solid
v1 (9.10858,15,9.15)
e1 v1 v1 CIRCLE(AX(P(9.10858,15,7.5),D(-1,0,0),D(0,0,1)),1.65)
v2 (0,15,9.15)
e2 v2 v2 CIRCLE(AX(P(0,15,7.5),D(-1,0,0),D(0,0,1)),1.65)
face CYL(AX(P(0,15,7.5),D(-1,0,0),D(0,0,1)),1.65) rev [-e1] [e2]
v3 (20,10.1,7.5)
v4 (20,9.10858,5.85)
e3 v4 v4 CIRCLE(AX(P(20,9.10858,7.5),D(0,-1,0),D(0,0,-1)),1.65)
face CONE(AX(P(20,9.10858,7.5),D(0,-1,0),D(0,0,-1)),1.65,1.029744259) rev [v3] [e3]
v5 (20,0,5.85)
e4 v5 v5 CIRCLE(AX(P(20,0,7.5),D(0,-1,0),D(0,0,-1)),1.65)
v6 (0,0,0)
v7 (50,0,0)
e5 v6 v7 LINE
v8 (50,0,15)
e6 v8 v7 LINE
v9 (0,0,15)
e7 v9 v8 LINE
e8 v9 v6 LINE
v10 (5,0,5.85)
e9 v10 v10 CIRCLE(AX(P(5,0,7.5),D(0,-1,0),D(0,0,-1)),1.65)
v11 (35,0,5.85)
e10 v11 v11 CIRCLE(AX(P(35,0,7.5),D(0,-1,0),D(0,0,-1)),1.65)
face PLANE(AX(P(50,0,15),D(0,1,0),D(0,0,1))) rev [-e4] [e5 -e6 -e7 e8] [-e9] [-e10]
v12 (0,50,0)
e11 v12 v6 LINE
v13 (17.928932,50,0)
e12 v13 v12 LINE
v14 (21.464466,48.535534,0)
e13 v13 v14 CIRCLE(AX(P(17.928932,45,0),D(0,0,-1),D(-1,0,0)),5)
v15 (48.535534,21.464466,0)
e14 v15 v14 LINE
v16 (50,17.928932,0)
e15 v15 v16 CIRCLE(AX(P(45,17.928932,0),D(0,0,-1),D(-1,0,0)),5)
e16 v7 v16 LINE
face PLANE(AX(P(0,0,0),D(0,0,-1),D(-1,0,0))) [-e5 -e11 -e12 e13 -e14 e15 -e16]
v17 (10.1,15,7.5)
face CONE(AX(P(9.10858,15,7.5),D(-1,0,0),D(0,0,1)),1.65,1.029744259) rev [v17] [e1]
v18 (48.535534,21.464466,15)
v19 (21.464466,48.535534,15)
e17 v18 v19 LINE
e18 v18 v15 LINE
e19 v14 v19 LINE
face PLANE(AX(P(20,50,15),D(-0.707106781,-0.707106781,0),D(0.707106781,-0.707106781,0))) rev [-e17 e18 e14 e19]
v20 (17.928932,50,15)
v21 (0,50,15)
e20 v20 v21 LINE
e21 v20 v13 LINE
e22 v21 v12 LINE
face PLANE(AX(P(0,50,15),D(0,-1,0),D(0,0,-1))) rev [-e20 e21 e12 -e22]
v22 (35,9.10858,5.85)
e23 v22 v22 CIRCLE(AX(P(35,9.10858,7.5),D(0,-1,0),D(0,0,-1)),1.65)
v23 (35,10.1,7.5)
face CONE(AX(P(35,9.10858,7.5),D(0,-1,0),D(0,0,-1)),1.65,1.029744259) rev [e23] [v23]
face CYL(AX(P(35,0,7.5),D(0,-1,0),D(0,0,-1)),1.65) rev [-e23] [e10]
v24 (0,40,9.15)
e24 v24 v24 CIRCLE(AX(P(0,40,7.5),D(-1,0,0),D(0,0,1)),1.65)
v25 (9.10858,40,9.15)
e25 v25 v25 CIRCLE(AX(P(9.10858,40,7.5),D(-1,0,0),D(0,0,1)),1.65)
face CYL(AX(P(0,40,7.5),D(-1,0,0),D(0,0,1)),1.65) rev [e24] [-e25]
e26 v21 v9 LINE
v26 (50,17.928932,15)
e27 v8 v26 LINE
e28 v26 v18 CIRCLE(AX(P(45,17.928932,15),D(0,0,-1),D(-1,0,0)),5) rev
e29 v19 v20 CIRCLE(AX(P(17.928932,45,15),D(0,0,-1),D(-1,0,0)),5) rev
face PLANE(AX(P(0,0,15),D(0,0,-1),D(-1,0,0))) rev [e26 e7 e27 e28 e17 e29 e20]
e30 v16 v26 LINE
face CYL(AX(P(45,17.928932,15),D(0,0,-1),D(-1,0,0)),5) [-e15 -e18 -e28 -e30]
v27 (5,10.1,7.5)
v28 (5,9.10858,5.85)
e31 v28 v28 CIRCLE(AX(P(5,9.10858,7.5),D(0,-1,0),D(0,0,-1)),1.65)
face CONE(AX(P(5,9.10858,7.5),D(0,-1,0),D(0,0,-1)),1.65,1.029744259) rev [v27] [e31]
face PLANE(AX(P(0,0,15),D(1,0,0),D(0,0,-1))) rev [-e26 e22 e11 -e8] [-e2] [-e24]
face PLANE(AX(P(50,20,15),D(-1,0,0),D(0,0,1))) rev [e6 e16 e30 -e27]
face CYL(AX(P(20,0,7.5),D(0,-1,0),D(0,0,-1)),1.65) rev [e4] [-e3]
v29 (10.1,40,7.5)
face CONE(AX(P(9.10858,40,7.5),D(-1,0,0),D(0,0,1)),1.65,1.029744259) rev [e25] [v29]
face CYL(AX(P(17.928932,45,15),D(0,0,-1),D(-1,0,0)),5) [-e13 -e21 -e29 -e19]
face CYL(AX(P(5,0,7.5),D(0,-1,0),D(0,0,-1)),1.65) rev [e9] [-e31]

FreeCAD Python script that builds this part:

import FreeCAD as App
import Part
import Sketcher

V = App.Vector


def edges_at(feature, points):
    """Names of the edges that pass closest to the given points."""
    edges = feature.Shape.Edges
    near = lambda p: min(range(len(edges)), key=lambda i: edges[i].distToShape(Part.Vertex(*p))[0])
    return sorted({f"Edge{near(p) + 1}" for p in points})


def add_polygon(sketch, points):
    """Adds a closed chain of lines whose ends are joined by coincident constraints."""
    first, n = sketch.GeometryCount, len(points)
    for a, b in zip(points, points[1:] + points[:1]):
        sketch.addGeometry(Part.LineSegment(App.Vector(*a, 0), App.Vector(*b, 0)), False)
    for i in range(n):
        sketch.addConstraint(Sketcher.Constraint("Coincident", first + i, 2, first + (i + 1) % n, 1))

doc = App.newDocument("Part")
body = doc.addObject("PartDesign::Body", "Body")

sketch1 = body.newObject("Sketcher::SketchObject", "Sketch")
sketch1.AttachmentSupport = (doc.getObject("XY_Plane"), [""])
sketch1.MapMode = "FlatFace"
add_polygon(sketch1, [(20, 50), (0, 50), (0, 0), (50, 0), (50, 20)])
sketch1.addConstraint([
    Sketcher.Constraint("Horizontal", 0),
    Sketcher.Constraint("Vertical", 1),
    Sketcher.Constraint("Horizontal", 2),
    Sketcher.Constraint("Vertical", 3),
    Sketcher.Constraint("Coincident", 1, 2, -1, 1),
    Sketcher.Constraint("Equal", 2, 1),
    Sketcher.Constraint("Equal", 0, 3),
    Sketcher.Constraint("DistanceX", 0, 2, 0, 1, 20.0),
    Sketcher.Constraint("DistanceX", 2, 1, 2, 2, 50.0),
])
pad1 = body.newObject("PartDesign::Pad", "Pad")
pad1.Profile = sketch1
pad1.Length = 15

sketch2 = body.newObject("Sketcher::SketchObject", "Sketch001")
sketch2.AttachmentSupport = (doc.getObject("YZ_Plane"), [""])
sketch2.MapMode = "FlatFace"
sketch2.addGeometry([
    Part.Circle(V(40, 7.5, 0), V(0, 0, 1), 1.65),
    Part.Circle(V(15, 7.5, 0), V(0, 0, 1), 1.65),
], False)
sketch2.addConstraint([
    Sketcher.Constraint("Equal", 0, 1),
    Sketcher.Constraint("Horizontal", 0, 3, 1, 3),
    Sketcher.Constraint("Diameter", 0, 3.3),
    Sketcher.Constraint("DistanceX", -1, 1, 0, 3, 40.0),
    Sketcher.Constraint("DistanceX", -1, 1, 1, 3, 15.0),
    Sketcher.Constraint("DistanceY", -1, 1, 0, 3, 7.5),
])
doc.recompute()
hole = body.newObject("PartDesign::Hole", "Hole")
hole.Profile = sketch2
hole.ThreadType = "None"
hole.Diameter = 3.3
hole.DepthType = "Dimension"
hole.Depth = 9.10858
hole.DrillPoint = "Angled"
hole.DrillPointAngle = 118
hole.Reversed = True

sketch3 = body.newObject("Sketcher::SketchObject", "Sketch002")
sketch3.AttachmentSupport = (doc.getObject("XZ_Plane"), [""])
sketch3.MapMode = "FlatFace"
sketch3.addGeometry([
    Part.Circle(V(35, 7.5, 0), V(0, 0, 1), 1.65),
    Part.Circle(V(20, 7.5, 0), V(0, 0, 1), 1.65),
    Part.Circle(V(5, 7.5, 0), V(0, 0, 1), 1.65),
], False)
sketch3.addConstraint([
    Sketcher.Constraint("Equal", 0, 1),
    Sketcher.Constraint("Equal", 1, 2),
    Sketcher.Constraint("Horizontal", 0, 3, 1, 3),
    Sketcher.Constraint("Horizontal", 1, 3, 2, 3),
    Sketcher.Constraint("Diameter", 0, 3.3),
    Sketcher.Constraint("DistanceX", -1, 1, 0, 3, 35.0),
    Sketcher.Constraint("DistanceX", -1, 1, 1, 3, 20.0),
    Sketcher.Constraint("DistanceX", -1, 1, 2, 3, 5.0),
    Sketcher.Constraint("DistanceY", -1, 1, 0, 3, 7.5),
])
doc.recompute()
hole2 = body.newObject("PartDesign::Hole", "Hole001")
hole2.Profile = sketch3
hole2.ThreadType = "None"
hole2.Diameter = 3.3
hole2.DepthType = "Dimension"
hole2.Depth = 9.10858
hole2.DrillPoint = "Angled"
hole2.DrillPointAngle = 118
doc.recompute()

fillet = body.newObject("PartDesign::Fillet", "Fillet")
fillet.Base = (hole2, edges_at(hole2, [(20, 50, 7.5), (50, 20, 7.5)]))
fillet.Radius = 5

doc.recompute()
